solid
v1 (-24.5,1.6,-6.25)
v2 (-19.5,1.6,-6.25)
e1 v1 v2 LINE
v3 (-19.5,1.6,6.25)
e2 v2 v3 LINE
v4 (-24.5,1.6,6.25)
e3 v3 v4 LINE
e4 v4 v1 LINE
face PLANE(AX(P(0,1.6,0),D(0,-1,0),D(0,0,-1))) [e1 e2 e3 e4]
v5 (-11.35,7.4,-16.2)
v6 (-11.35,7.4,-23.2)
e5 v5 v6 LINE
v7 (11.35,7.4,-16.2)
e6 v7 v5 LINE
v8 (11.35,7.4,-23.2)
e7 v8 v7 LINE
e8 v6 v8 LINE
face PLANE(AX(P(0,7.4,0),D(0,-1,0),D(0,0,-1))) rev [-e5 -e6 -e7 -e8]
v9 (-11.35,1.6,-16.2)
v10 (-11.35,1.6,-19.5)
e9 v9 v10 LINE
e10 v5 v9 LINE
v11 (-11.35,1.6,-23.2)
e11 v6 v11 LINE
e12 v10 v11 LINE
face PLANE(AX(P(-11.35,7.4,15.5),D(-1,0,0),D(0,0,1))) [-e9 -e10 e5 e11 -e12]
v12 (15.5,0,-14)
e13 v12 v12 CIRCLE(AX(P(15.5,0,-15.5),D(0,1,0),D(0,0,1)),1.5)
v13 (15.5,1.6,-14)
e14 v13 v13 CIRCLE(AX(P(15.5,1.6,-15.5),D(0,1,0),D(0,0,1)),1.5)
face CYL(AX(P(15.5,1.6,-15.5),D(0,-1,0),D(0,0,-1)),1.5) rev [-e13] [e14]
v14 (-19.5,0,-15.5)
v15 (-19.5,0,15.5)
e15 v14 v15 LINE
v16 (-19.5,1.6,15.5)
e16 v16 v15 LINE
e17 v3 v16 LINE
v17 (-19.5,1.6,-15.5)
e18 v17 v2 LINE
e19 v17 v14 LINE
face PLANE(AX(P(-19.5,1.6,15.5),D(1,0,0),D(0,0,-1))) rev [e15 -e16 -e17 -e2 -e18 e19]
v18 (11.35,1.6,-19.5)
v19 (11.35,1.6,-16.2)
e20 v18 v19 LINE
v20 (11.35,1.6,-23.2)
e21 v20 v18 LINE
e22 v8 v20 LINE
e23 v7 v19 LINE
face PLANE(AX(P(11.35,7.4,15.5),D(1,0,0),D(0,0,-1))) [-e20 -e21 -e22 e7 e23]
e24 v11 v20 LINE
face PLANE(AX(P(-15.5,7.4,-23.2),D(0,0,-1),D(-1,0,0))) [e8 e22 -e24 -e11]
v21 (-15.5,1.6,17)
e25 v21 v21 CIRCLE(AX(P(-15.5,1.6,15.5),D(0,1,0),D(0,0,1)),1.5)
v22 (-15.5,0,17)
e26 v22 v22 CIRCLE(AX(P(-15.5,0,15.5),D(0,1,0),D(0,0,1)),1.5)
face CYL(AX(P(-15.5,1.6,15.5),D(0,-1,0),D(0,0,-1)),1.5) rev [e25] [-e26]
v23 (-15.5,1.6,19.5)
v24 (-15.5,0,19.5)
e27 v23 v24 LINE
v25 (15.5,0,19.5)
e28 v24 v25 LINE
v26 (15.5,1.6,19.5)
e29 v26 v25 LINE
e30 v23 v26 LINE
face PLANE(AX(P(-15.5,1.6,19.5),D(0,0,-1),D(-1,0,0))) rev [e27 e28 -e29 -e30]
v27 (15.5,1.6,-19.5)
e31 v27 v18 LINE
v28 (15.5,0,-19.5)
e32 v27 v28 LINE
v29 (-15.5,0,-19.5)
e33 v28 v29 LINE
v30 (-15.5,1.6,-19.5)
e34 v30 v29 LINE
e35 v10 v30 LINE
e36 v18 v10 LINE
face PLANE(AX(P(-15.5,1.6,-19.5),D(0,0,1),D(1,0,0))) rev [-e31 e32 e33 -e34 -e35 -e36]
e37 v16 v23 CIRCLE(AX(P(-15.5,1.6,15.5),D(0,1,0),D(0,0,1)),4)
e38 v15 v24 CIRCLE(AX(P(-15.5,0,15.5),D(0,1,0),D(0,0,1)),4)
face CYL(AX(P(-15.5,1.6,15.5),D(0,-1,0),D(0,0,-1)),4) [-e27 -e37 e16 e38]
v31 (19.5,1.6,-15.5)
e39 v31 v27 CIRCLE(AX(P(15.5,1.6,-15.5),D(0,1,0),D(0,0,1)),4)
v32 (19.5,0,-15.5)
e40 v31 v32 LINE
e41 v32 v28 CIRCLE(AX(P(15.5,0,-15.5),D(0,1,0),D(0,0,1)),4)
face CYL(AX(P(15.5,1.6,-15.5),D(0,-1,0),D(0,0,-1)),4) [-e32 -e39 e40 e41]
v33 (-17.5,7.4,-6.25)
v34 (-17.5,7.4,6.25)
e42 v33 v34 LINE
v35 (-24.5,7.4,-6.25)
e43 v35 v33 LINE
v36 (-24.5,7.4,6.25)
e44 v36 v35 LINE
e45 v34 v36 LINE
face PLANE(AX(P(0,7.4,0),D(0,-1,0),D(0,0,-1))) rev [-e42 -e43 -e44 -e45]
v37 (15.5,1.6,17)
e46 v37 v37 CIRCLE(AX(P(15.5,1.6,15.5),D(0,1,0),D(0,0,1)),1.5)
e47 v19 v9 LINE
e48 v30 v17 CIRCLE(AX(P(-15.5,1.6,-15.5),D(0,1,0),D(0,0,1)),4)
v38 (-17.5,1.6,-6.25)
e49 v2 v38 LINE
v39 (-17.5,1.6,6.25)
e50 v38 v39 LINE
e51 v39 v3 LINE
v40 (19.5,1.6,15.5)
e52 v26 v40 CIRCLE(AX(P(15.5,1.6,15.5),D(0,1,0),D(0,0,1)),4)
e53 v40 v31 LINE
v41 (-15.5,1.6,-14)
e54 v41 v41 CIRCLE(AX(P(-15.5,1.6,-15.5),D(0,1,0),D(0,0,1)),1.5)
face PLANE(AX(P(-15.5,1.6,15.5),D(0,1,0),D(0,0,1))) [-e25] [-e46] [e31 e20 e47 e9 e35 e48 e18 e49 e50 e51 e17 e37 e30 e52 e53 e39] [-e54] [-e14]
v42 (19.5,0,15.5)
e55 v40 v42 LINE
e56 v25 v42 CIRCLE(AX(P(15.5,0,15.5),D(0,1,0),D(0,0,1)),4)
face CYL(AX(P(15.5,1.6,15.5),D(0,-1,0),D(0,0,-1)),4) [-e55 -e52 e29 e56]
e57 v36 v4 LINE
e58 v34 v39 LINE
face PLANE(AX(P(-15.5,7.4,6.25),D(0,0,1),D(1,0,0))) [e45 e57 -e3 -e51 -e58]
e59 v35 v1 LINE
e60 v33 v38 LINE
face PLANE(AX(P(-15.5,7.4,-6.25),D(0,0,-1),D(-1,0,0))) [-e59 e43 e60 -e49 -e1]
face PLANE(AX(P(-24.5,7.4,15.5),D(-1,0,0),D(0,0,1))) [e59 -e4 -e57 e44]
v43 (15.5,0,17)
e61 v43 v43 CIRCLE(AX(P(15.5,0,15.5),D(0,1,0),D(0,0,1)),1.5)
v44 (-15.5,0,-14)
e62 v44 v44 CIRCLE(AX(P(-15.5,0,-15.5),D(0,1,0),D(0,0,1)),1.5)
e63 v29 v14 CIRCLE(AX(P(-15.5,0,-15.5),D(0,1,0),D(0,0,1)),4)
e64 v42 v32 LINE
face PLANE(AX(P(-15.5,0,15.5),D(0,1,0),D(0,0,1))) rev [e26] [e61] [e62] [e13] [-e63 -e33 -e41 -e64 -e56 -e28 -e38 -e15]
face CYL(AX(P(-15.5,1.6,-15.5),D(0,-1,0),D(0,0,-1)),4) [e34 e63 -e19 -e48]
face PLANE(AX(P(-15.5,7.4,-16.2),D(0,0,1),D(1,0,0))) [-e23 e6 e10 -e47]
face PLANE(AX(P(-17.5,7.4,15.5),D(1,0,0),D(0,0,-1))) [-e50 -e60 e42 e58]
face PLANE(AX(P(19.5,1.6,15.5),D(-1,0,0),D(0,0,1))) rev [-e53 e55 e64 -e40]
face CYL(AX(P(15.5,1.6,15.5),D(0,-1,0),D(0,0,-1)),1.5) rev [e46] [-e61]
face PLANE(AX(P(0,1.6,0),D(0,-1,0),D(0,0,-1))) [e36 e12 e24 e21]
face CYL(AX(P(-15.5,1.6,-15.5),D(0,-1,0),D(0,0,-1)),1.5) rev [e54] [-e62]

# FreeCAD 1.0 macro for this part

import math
import FreeCAD as App
import Part
import Sketcher
Q = App.Units.Quantity

doc = App.newDocument("Part")
params = doc.addObject("Spreadsheet::Sheet", "Params")
for row, (alias, value) in enumerate([
    ("sketch1_diameter", "3 mm"),
    ("sketch1_radius", "4 mm"),
    ("sketch1_width", "31 mm"),
    ("pad1_length", "1.6 mm"),
    ("sketch2_width", "7 mm"),
    ("sketch2_width2", "22.7 mm"),
    ("sketch2_height", "12.5 mm"),
    ("pad2_length", "5.8 mm"),
], start=1):
    params.set(f"A{row}", alias)
    params.set(f"B{row}", "=" + value)
    params.setAlias(f"B{row}", alias)

body = doc.addObject("PartDesign::Body", "Body")

# Sketch on XZ plane
sketch1 = body.newObject("Sketcher::SketchObject", "Sketch")
sketch1.AttachmentSupport = (doc.getObject("XZ_Plane"), [""])
sketch1.MapMode = "FlatFace"
sketch1.addGeometry([
    Part.LineSegment(App.Vector(-15.5, 19.5, 0), App.Vector(15.5, 19.5, 0)),  # 0
    Part.ArcOfCircle(Part.Circle(App.Vector(15.5, 15.5, 0), App.Vector(0, 0, 1), 4), math.radians(0), math.radians(90)),  # 1
    Part.LineSegment(App.Vector(19.5, 15.5, 0), App.Vector(19.5, -15.5, 0)),  # 2
    Part.ArcOfCircle(Part.Circle(App.Vector(15.5, -15.5, 0), App.Vector(0, 0, 1), 4), math.radians(-90), math.radians(0)),  # 3
    Part.LineSegment(App.Vector(15.5, -19.5, 0), App.Vector(-15.5, -19.5, 0)),  # 4
    Part.ArcOfCircle(Part.Circle(App.Vector(-15.5, -15.5, 0), App.Vector(0, 0, 1), 4), math.radians(180), math.radians(270)),  # 5
    Part.LineSegment(App.Vector(-19.5, -15.5, 0), App.Vector(-19.5, 15.5, 0)),  # 6
    Part.ArcOfCircle(Part.Circle(App.Vector(-15.5, 15.5, 0), App.Vector(0, 0, 1), 4), math.radians(90), math.radians(180)),  # 7
    Part.Circle(App.Vector(-15.5, 15.5, 0), App.Vector(0, 0, 1), 1.5),  # 8
    Part.Circle(App.Vector(15.5, 15.5, 0), App.Vector(0, 0, 1), 1.5),  # 9
    Part.Circle(App.Vector(-15.5, -15.5, 0), App.Vector(0, 0, 1), 1.5),  # 10
    Part.Circle(App.Vector(15.5, -15.5, 0), App.Vector(0, 0, 1), 1.5),  # 11
], False)
sketch1.addConstraint([
    Sketcher.Constraint("Tangent", 0, 2, 1, 2),
    Sketcher.Constraint("Tangent", 1, 1, 2, 1),
    Sketcher.Constraint("Tangent", 2, 2, 3, 2),
    Sketcher.Constraint("Tangent", 3, 1, 4, 1),
    Sketcher.Constraint("Tangent", 4, 2, 5, 2),
    Sketcher.Constraint("Tangent", 5, 1, 6, 1),
    Sketcher.Constraint("Tangent", 6, 2, 7, 2),
    Sketcher.Constraint("Tangent", 7, 1, 0, 1),
    Sketcher.Constraint("Horizontal", 0),
    Sketcher.Constraint("Vertical", 2),
    Sketcher.Constraint("Horizontal", 4),
    Sketcher.Constraint("Vertical", 6),
    Sketcher.Constraint("Coincident", 8, 3, 7, 3),
    Sketcher.Constraint("Coincident", 9, 3, 1, 3),
    Sketcher.Constraint("Coincident", 10, 3, 5, 3),
    Sketcher.Constraint("Coincident", 11, 3, 3, 3),
    Sketcher.Constraint("Equal", 1, 3),
    Sketcher.Constraint("Equal", 3, 5),
    Sketcher.Constraint("Equal", 5, 7),
    Sketcher.Constraint("Equal", 8, 9),
    Sketcher.Constraint("Equal", 9, 10),
    Sketcher.Constraint("Equal", 10, 11),
    Sketcher.Constraint("Symmetric", 1, 3, 5, 3, -1, 1),
    Sketcher.Constraint("Equal", 4, 2),
    Sketcher.Constraint("Diameter", 8, Q("3 mm")),
    Sketcher.Constraint("Radius", 1, Q("4 mm")),
    Sketcher.Constraint("DistanceX", 0, 1, 0, 2, Q("31 mm")),
])
sketch1.setExpression("Constraints[24]", "Params.sketch1_diameter")
sketch1.setExpression("Constraints[25]", "Params.sketch1_radius")
sketch1.setExpression("Constraints[26]", "Params.sketch1_width")
pad1 = body.newObject("PartDesign::Pad", "Pad")
pad1.Profile = sketch1
pad1.setExpression("Length", "Params.pad1_length")
pad1.Reversed = True

# Sketch on XZ plane
sketch2 = body.newObject("Sketcher::SketchObject", "Sketch001")
sketch2.AttachmentSupport = (doc.getObject("XZ_Plane"), [""])
sketch2.MapMode = "FlatFace"
sketch2.AttachmentOffset = App.Placement(App.Vector(0, 0, -1.6), App.Rotation())
sketch2.addGeometry([
    Part.LineSegment(App.Vector(-11, -23, 0), App.Vector(-11, -16, 0)),  # 0
    Part.LineSegment(App.Vector(-11, -16, 0), App.Vector(11, -16, 0)),  # 1
    Part.LineSegment(App.Vector(11, -16, 0), App.Vector(11, -23, 0)),  # 2
    Part.LineSegment(App.Vector(11, -23, 0), App.Vector(-11, -23, 0)),  # 3
    Part.LineSegment(App.Vector(-24, -6, 0), App.Vector(-24, 6, 0)),  # 4
    Part.LineSegment(App.Vector(-24, 6, 0), App.Vector(-18, 6, 0)),  # 5
    Part.LineSegment(App.Vector(-18, 6, 0), App.Vector(-18, -6, 0)),  # 6
    Part.LineSegment(App.Vector(-18, -6, 0), App.Vector(-24, -6, 0)),  # 7
], False)
sketch2.addConstraint([
    Sketcher.Constraint("Coincident", 0, 2, 1, 1),
    Sketcher.Constraint("Coincident", 1, 2, 2, 1),
    Sketcher.Constraint("Coincident", 2, 2, 3, 1),
    Sketcher.Constraint("Coincident", 3, 2, 0, 1),
    Sketcher.Constraint("Coincident", 4, 2, 5, 1),
    Sketcher.Constraint("Coincident", 5, 2, 6, 1),
    Sketcher.Constraint("Coincident", 6, 2, 7, 1),
    Sketcher.Constraint("Coincident", 7, 2, 4, 1),
    Sketcher.Constraint("Vertical", 0),
    Sketcher.Constraint("Horizontal", 1),
    Sketcher.Constraint("Vertical", 2),
    Sketcher.Constraint("Horizontal", 3),
    Sketcher.Constraint("Vertical", 4),
    Sketcher.Constraint("Horizontal", 5),
    Sketcher.Constraint("Vertical", 6),
    Sketcher.Constraint("Horizontal", 7),
    Sketcher.Constraint("Equal", 7, 0),
    Sketcher.Constraint("DistanceX", 5, 1, 5, 2, Q("7 mm")),
    Sketcher.Constraint("DistanceX", 1, 1, 1, 2, Q("22.7 mm")),
    Sketcher.Constraint("DistanceY", 4, 1, 4, 2, Q("12.5 mm")),
    Sketcher.Constraint("DistanceY", 0, 2, -1, 1, Q("16.2 mm")),
    Sketcher.Constraint("DistanceX", 4, 2, -1, 1, Q("24.5 mm")),
    Sketcher.Constraint("DistanceX", 0, 2, -1, 1, Q("11.35 mm")),
    Sketcher.Constraint("DistanceY", -1, 1, 4, 2, Q("6.25 mm")),
])
sketch2.setExpression("Constraints[17]", "Params.sketch2_width")
sketch2.setExpression("Constraints[18]", "Params.sketch2_width2")
sketch2.setExpression("Constraints[19]", "Params.sketch2_height")
pad2 = body.newObject("PartDesign::Pad", "Pad001")
pad2.Profile = sketch2
pad2.setExpression("Length", "Params.pad2_length")
pad2.Reversed = True

doc.recompute()
